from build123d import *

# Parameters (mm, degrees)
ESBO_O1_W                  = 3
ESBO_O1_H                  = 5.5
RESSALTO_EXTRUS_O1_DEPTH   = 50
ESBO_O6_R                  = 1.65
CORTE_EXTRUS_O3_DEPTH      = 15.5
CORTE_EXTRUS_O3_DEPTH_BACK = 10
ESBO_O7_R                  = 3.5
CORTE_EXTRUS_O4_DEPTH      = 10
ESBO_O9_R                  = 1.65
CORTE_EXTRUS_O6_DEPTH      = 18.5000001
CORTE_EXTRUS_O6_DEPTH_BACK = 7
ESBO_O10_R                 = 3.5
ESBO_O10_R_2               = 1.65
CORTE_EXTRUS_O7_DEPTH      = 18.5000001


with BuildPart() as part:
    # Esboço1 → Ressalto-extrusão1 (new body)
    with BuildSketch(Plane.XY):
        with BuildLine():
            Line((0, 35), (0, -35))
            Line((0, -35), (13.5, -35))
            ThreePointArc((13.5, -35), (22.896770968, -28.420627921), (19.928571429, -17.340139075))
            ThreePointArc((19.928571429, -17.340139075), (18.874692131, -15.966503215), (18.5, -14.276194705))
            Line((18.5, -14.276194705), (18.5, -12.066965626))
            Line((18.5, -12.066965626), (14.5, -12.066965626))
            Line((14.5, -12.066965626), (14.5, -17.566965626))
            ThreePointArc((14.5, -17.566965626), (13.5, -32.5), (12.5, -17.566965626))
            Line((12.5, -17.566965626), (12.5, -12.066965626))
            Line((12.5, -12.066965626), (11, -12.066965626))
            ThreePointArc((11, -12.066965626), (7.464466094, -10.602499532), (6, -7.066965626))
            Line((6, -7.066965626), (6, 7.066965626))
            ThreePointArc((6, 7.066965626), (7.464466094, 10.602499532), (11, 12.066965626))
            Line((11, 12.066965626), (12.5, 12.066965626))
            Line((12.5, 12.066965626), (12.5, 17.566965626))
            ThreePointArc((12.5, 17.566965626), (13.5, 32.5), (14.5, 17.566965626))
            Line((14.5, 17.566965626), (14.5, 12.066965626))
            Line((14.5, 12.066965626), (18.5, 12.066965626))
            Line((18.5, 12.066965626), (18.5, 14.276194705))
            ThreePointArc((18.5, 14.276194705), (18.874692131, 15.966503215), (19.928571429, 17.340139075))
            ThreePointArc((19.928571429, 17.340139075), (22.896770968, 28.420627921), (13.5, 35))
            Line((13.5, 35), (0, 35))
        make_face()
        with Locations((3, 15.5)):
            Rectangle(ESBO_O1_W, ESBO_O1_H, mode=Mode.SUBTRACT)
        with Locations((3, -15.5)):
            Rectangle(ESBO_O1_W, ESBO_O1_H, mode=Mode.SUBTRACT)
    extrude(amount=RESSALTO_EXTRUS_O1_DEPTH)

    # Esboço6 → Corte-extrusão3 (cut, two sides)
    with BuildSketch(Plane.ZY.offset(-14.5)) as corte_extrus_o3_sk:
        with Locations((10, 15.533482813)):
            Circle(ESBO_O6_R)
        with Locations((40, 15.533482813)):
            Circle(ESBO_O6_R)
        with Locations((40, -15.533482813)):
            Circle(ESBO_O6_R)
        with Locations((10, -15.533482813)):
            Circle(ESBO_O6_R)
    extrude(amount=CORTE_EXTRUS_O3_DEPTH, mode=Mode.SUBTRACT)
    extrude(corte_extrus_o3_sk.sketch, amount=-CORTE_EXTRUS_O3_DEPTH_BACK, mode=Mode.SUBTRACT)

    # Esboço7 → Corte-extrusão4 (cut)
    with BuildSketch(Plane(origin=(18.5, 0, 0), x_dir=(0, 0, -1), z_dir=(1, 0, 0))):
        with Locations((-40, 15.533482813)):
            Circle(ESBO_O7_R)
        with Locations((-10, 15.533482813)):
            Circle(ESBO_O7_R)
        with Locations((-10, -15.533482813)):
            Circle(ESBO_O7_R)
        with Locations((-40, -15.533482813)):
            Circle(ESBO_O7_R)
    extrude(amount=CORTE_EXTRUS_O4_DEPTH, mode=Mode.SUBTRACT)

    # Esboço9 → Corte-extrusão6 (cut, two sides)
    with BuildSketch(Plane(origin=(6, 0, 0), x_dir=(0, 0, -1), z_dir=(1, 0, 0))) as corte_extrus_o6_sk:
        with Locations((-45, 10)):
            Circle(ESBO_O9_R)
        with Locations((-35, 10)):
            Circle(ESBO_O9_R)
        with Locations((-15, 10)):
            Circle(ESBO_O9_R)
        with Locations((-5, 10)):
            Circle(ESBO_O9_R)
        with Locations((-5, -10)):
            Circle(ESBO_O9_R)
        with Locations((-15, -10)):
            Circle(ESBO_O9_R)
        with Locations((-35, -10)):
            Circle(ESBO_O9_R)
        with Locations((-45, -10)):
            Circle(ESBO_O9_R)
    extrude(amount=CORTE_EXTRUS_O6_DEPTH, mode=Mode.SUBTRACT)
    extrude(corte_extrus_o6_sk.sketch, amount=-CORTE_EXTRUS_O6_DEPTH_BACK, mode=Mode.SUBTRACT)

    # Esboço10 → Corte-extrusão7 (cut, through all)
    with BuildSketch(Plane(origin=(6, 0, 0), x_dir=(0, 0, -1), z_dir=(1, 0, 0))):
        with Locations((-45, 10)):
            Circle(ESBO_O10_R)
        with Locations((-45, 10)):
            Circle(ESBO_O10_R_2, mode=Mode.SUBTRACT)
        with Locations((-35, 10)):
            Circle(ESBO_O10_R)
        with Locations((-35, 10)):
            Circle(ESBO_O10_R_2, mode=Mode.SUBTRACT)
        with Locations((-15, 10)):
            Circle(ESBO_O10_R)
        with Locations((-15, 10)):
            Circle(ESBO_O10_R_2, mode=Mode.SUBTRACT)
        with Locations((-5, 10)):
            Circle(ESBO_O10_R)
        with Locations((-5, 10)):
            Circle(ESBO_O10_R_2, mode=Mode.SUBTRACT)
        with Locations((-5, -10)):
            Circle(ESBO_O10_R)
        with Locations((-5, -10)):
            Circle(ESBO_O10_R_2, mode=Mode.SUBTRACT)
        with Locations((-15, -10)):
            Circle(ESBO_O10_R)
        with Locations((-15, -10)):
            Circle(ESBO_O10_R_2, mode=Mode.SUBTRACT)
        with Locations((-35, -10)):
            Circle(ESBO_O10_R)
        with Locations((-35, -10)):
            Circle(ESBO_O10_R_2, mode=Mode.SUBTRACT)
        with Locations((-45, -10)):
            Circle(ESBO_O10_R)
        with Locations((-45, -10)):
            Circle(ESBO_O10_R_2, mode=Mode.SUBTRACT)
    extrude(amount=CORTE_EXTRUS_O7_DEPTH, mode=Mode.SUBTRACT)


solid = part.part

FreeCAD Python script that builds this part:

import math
import FreeCAD as App
import Part
import Sketcher

V = App.Vector


def add_polygon(sketch, points):
    """Adds a closed chain of lines whose ends are joined by coincident constraints."""
    first, n = sketch.GeometryCount, len(points)
    for a, b in zip(points, points[1:] + points[:1]):
        sketch.addGeometry(Part.LineSegment(App.Vector(*a, 0), App.Vector(*b, 0)), False)
    for i in range(n):
        sketch.addConstraint(Sketcher.Constraint("Coincident", first + i, 2, first + (i + 1) % n, 1))

doc = App.newDocument("Part")
body = doc.addObject("PartDesign::Body", "Body")

# Sketch on XY plane
sketch1 = body.newObject("Sketcher::SketchObject", "Sketch")
sketch1.AttachmentSupport = (doc.getObject("XY_Plane"), [""])
sketch1.MapMode = "FlatFace"
sketch1.addGeometry(Part.LineSegment(V(0, 35, 0), V(0, -35, 0)), False)  # 0
sketch1.addGeometry(Part.LineSegment(V(0, -35, 0), V(13.5, -35, 0)), False)  # 1
sketch1.addGeometry(Part.ArcOfCircle(Part.Circle(V(13.5, -25, 0), V(0, 0, 1), 10), math.radians(-90), math.radians(50)), False)  # 2
sketch1.addGeometry(Part.ArcOfCircle(Part.Circle(V(22.5, -14.3, 0), V(0, 0, 1), 4), math.radians(180), math.radians(230)), False)  # 3
sketch1.addGeometry(Part.LineSegment(V(18.5, -14.3, 0), V(18.5, -12.1, 0)), False)  # 4
sketch1.addGeometry(Part.LineSegment(V(18.5, -12.1, 0), V(14.5, -12.1, 0)), False)  # 5
sketch1.addGeometry(Part.LineSegment(V(14.5, -12.1, 0), V(14.5, -17.6, 0)), False)  # 6
sketch1.addGeometry(Part.ArcOfCircle(Part.Circle(V(13.5, -25, 0), V(0, 0, 1), 7.5), math.radians(98), math.radians(442)), False)  # 7
sketch1.addGeometry(Part.LineSegment(V(12.5, -17.6, 0), V(12.5, -12.1, 0)), False)  # 8
sketch1.addGeometry(Part.LineSegment(V(12.5, -12.1, 0), V(11, -12.1, 0)), False)  # 9
sketch1.addGeometry(Part.ArcOfCircle(Part.Circle(V(11, -7.1, 0), V(0, 0, 1), 5), math.radians(180), math.radians(270)), False)  # 10
sketch1.addGeometry(Part.LineSegment(V(6, -7.1, 0), V(6, 7.1, 0)), False)  # 11
sketch1.addGeometry(Part.ArcOfCircle(Part.Circle(V(11, 7.1, 0), V(0, 0, 1), 5), math.radians(90), math.radians(180)), False)  # 12
sketch1.addGeometry(Part.LineSegment(V(11, 12.1, 0), V(12.5, 12.1, 0)), False)  # 13
sketch1.addGeometry(Part.LineSegment(V(12.5, 12.1, 0), V(12.5, 17.6, 0)), False)  # 14
sketch1.addGeometry(Part.ArcOfCircle(Part.Circle(V(13.5, 25, 0), V(0, 0, 1), 7.5), math.radians(-82), math.radians(262)), False)  # 15
sketch1.addGeometry(Part.LineSegment(V(14.5, 17.6, 0), V(14.5, 12.1, 0)), False)  # 16
sketch1.addGeometry(Part.LineSegment(V(14.5, 12.1, 0), V(18.5, 12.1, 0)), False)  # 17
sketch1.addGeometry(Part.LineSegment(V(18.5, 12.1, 0), V(18.5, 14.3, 0)), False)  # 18
sketch1.addGeometry(Part.ArcOfCircle(Part.Circle(V(22.5, 14.3, 0), V(0, 0, 1), 4), math.radians(130), math.radians(180)), False)  # 19
sketch1.addGeometry(Part.ArcOfCircle(Part.Circle(V(13.5, 25, 0), V(0, 0, 1), 10), math.radians(-50), math.radians(90)), False)  # 20
sketch1.addGeometry(Part.LineSegment(V(13.5, 35, 0), V(0, 35, 0)), False)  # 21
add_polygon(sketch1, [(4.5, -18.2), (1.5, -18.2), (1.5, -12.8), (4.5, -12.8)])  # lines 22-25
add_polygon(sketch1, [(4.5, 12.8), (1.5, 12.8), (1.5, 18.2), (4.5, 18.2)])  # lines 26-29
sketch1.addConstraint(Sketcher.Constraint("Coincident", 0, 2, 1, 1))
sketch1.addConstraint(Sketcher.Constraint("Tangent", 1, 2, 2, 1))
sketch1.addConstraint(Sketcher.Constraint("Tangent", 2, 2, 3, 2))
sketch1.addConstraint(Sketcher.Constraint("Tangent", 3, 1, 4, 1))
sketch1.addConstraint(Sketcher.Constraint("Coincident", 4, 2, 5, 1))
sketch1.addConstraint(Sketcher.Constraint("Coincident", 5, 2, 6, 1))
sketch1.addConstraint(Sketcher.Constraint("Coincident", 6, 2, 7, 2))
sketch1.addConstraint(Sketcher.Constraint("Coincident", 7, 1, 8, 1))
sketch1.addConstraint(Sketcher.Constraint("Coincident", 8, 2, 9, 1))
sketch1.addConstraint(Sketcher.Constraint("Tangent", 9, 2, 10, 2))
sketch1.addConstraint(Sketcher.Constraint("Tangent", 10, 1, 11, 1))
sketch1.addConstraint(Sketcher.Constraint("Tangent", 11, 2, 12, 2))
sketch1.addConstraint(Sketcher.Constraint("Tangent", 12, 1, 13, 1))
sketch1.addConstraint(Sketcher.Constraint("Coincident", 13, 2, 14, 1))
sketch1.addConstraint(Sketcher.Constraint("Coincident", 14, 2, 15, 2))
sketch1.addConstraint(Sketcher.Constraint("Coincident", 15, 1, 16, 1))
sketch1.addConstraint(Sketcher.Constraint("Coincident", 16, 2, 17, 1))
sketch1.addConstraint(Sketcher.Constraint("Coincident", 17, 2, 18, 1))
sketch1.addConstraint(Sketcher.Constraint("Tangent", 18, 2, 19, 2))
sketch1.addConstraint(Sketcher.Constraint("Tangent", 19, 1, 20, 1))
sketch1.addConstraint(Sketcher.Constraint("Tangent", 20, 2, 21, 1))
sketch1.addConstraint(Sketcher.Constraint("Coincident", 21, 2, 0, 1))
sketch1.addConstraint(Sketcher.Constraint("Vertical", 0))
sketch1.addConstraint(Sketcher.Constraint("Horizontal", 1))
sketch1.addConstraint(Sketcher.Constraint("Vertical", 4))
sketch1.addConstraint(Sketcher.Constraint("Horizontal", 5))
sketch1.addConstraint(Sketcher.Constraint("Vertical", 6))
sketch1.addConstraint(Sketcher.Constraint("Vertical", 8))
sketch1.addConstraint(Sketcher.Constraint("Horizontal", 9))
sketch1.addConstraint(Sketcher.Constraint("Vertical", 11))
sketch1.addConstraint(Sketcher.Constraint("Horizontal", 13))
sketch1.addConstraint(Sketcher.Constraint("Vertical", 14))
sketch1.addConstraint(Sketcher.Constraint("Vertical", 16))
sketch1.addConstraint(Sketcher.Constraint("Horizontal", 17))
sketch1.addConstraint(Sketcher.Constraint("Vertical", 18))
sketch1.addConstraint(Sketcher.Constraint("Horizontal", 21))
sketch1.addConstraint(Sketcher.Constraint("Horizontal", 22))
sketch1.addConstraint(Sketcher.Constraint("Vertical", 23))
sketch1.addConstraint(Sketcher.Constraint("Horizontal", 24))
sketch1.addConstraint(Sketcher.Constraint("Vertical", 25))
sketch1.addConstraint(Sketcher.Constraint("Horizontal", 26))
sketch1.addConstraint(Sketcher.Constraint("Vertical", 27))
sketch1.addConstraint(Sketcher.Constraint("Horizontal", 28))
sketch1.addConstraint(Sketcher.Constraint("Vertical", 29))
sketch1.addConstraint(Sketcher.Constraint("Coincident", 7, 3, 2, 3))
sketch1.addConstraint(Sketcher.Constraint("Coincident", 20, 3, 15, 3))
sketch1.addConstraint(Sketcher.Constraint("Equal", 10, 12))
sketch1.addConstraint(Sketcher.Constraint("Equal", 7, 15))
sketch1.addConstraint(Sketcher.Constraint("Equal", 3, 19))
sketch1.addConstraint(Sketcher.Constraint("Equal", 2, 20))
sketch1.addConstraint(Sketcher.Constraint("Symmetric", 0, 2, 21, 2, -1, 1))
sketch1.addConstraint(Sketcher.Constraint("Symmetric", 3, 3, 19, 3, -1))
sketch1.addConstraint(Sketcher.Constraint("Symmetric", 8, 2, 13, 2, -1))
sketch1.addConstraint(Sketcher.Constraint("Symmetric", 5, 2, 16, 2, -1))
sketch1.addConstraint(Sketcher.Constraint("Symmetric", 23, 2, 26, 2, -1))
sketch1.addConstraint(Sketcher.Constraint("Symmetric", 25, 2, 28, 2, -1))
sketch1.addConstraint(Sketcher.Constraint("Horizontal", 6, 2, 7, 1))
sketch1.addConstraint(Sketcher.Constraint("Horizontal", 5, 2, 8, 2))
sketch1.addConstraint(Sketcher.Constraint("Equal", 16, 23))
sketch1.addConstraint(Sketcher.Constraint("Radius", 2, 10.0))
sketch1.addConstraint(Sketcher.Constraint("Radius", 3, 4.0))
sketch1.addConstraint(Sketcher.Constraint("Radius", 10, 5.0))
sketch1.addConstraint(Sketcher.Constraint("Radius", 7, 7.5))
sketch1.addConstraint(Sketcher.Constraint("DistanceX", 5, 2, 5, 1, 4.0))
sketch1.addConstraint(Sketcher.Constraint("DistanceX", 22, 2, 22, 1, 3.0))
sketch1.addConstraint(Sketcher.Constraint("DistanceY", 0, 2, 0, 1, 70.0))
sketch1.addConstraint(Sketcher.Constraint("DistanceX", 1, 1, 1, 2, 13.5))
sketch1.addConstraint(Sketcher.Constraint("DistanceX", 9, 2, 9, 1, 1.5))
sketch1.addConstraint(Sketcher.Constraint("DistanceY", 6, 2, 6, 1, 5.5))
sketch1.addConstraint(Sketcher.Constraint("DistanceX", -1, 1, 10, 3, 11.0))
sketch1.addConstraint(Sketcher.Constraint("DistanceX", 22, 2, 7, 1, 11.0))
sketch1.addConstraint(Sketcher.Constraint("DistanceY", 22, 2, -1, 1, 18.25))
pad1 = body.newObject("PartDesign::Pad", "Pad")
pad1.Profile = sketch1
pad1.Length = 50

# Sketch on YZ plane
sketch2 = body.newObject("Sketcher::SketchObject", "Sketch001")
sketch2.AttachmentSupport = (doc.getObject("YZ_Plane"), [""])
sketch2.MapMode = "FlatFace"
sketch2.AttachmentOffset = App.Placement(V(0, 0, 14.5), App.Rotation())
sketch2.addGeometry(Part.Circle(V(15.5, 10, 0), V(0, 0, 1), 1.6), False)
sketch2.addGeometry(Part.Circle(V(15.5, 40, 0), V(0, 0, 1), 1.6), False)
sketch2.addGeometry(Part.Circle(V(-15.5, 40, 0), V(0, 0, 1), 1.6), False)
sketch2.addGeometry(Part.Circle(V(-15.5, 10, 0), V(0, 0, 1), 1.6), False)
sketch2.addConstraint(Sketcher.Constraint("Equal", 0, 1))
sketch2.addConstraint(Sketcher.Constraint("Equal", 1, 2))
sketch2.addConstraint(Sketcher.Constraint("Equal", 2, 3))
sketch2.addConstraint(Sketcher.Constraint("Symmetric", 1, 3, 2, 3, -2))
sketch2.addConstraint(Sketcher.Constraint("Symmetric", 0, 3, 3, 3, -2))
sketch2.addConstraint(Sketcher.Constraint("Vertical", 0, 3, 1, 3))
sketch2.addConstraint(Sketcher.Constraint("Diameter", 0, 3.3))
sketch2.addConstraint(Sketcher.Constraint("DistanceY", -1, 1, 0, 3, 10.0))
sketch2.addConstraint(Sketcher.Constraint("DistanceY", -1, 1, 1, 3, 40.0))
sketch2.addConstraint(Sketcher.Constraint("DistanceX", -1, 1, 0, 3, 15.533483))
pocket1 = body.newObject("PartDesign::Pocket", "Pocket")
pocket1.Profile = sketch2
pocket1.Type = "ThroughAll"
pocket1.Midplane = True

# Sketch on YZ plane
sketch3 = body.newObject("Sketcher::SketchObject", "Sketch002")
sketch3.AttachmentSupport = (doc.getObject("YZ_Plane"), [""])
sketch3.MapMode = "FlatFace"
sketch3.AttachmentOffset = App.Placement(V(0, 0, 18.5), App.Rotation())
sketch3.addGeometry(Part.Circle(V(15.5, 40, 0), V(0, 0, 1), 3.5), False)
sketch3.addGeometry(Part.Circle(V(15.5, 10, 0), V(0, 0, 1), 3.5), False)
sketch3.addGeometry(Part.Circle(V(-15.5, 10, 0), V(0, 0, 1), 3.5), False)
sketch3.addGeometry(Part.Circle(V(-15.5, 40, 0), V(0, 0, 1), 3.5), False)
sketch3.addConstraint(Sketcher.Constraint("Equal", 0, 1))
sketch3.addConstraint(Sketcher.Constraint("Equal", 1, 2))
sketch3.addConstraint(Sketcher.Constraint("Equal", 2, 3))
sketch3.addConstraint(Sketcher.Constraint("Symmetric", 1, 3, 2, 3, -2))
sketch3.addConstraint(Sketcher.Constraint("Symmetric", 0, 3, 3, 3, -2))
sketch3.addConstraint(Sketcher.Constraint("Vertical", 0, 3, 1, 3))
sketch3.addConstraint(Sketcher.Constraint("Diameter", 0, 7.0))
sketch3.addConstraint(Sketcher.Constraint("DistanceY", -1, 1, 0, 3, 40.0))
sketch3.addConstraint(Sketcher.Constraint("DistanceY", -1, 1, 1, 3, 10.0))
sketch3.addConstraint(Sketcher.Constraint("DistanceX", -1, 1, 0, 3, 15.533483))
pocket2 = body.newObject("PartDesign::Pocket", "Pocket001")
pocket2.Profile = sketch3
pocket2.Length = 10
pocket2.Reversed = True

# Sketch on YZ plane
sketch4 = body.newObject("Sketcher::SketchObject", "Sketch003")
sketch4.AttachmentSupport = (doc.getObject("YZ_Plane"), [""])
sketch4.MapMode = "FlatFace"
sketch4.AttachmentOffset = App.Placement(V(0, 0, 6), App.Rotation())
sketch4.addGeometry(Part.Circle(V(10, 45, 0), V(0, 0, 1), 1.6), False)
sketch4.addGeometry(Part.Circle(V(10, 35, 0), V(0, 0, 1), 1.6), False)
sketch4.addGeometry(Part.Circle(V(10, 15, 0), V(0, 0, 1), 1.6), False)
sketch4.addGeometry(Part.Circle(V(10, 5, 0), V(0, 0, 1), 1.6), False)
sketch4.addGeometry(Part.Circle(V(-10, 5, 0), V(0, 0, 1), 1.6), False)
sketch4.addGeometry(Part.Circle(V(-10, 15, 0), V(0, 0, 1), 1.6), False)
sketch4.addGeometry(Part.Circle(V(-10, 35, 0), V(0, 0, 1), 1.6), False)
sketch4.addGeometry(Part.Circle(V(-10, 45, 0), V(0, 0, 1), 1.6), False)
sketch4.addConstraint(Sketcher.Constraint("Equal", 0, 1))
sketch4.addConstraint(Sketcher.Constraint("Equal", 1, 2))
sketch4.addConstraint(Sketcher.Constraint("Equal", 2, 3))
sketch4.addConstraint(Sketcher.Constraint("Equal", 3, 4))
sketch4.addConstraint(Sketcher.Constraint("Equal", 4, 5))
sketch4.addConstraint(Sketcher.Constraint("Equal", 5, 6))
sketch4.addConstraint(Sketcher.Constraint("Equal", 6, 7))
sketch4.addConstraint(Sketcher.Constraint("Symmetric", 3, 3, 4, 3, -2))
sketch4.addConstraint(Sketcher.Constraint("Symmetric", 2, 3, 5, 3, -2))
sketch4.addConstraint(Sketcher.Constraint("Symmetric", 1, 3, 6, 3, -2))
sketch4.addConstraint(Sketcher.Constraint("Symmetric", 0, 3, 7, 3, -2))
sketch4.addConstraint(Sketcher.Constraint("Vertical", 0, 3, 1, 3))
sketch4.addConstraint(Sketcher.Constraint("Vertical", 1, 3, 2, 3))
sketch4.addConstraint(Sketcher.Constraint("Vertical", 2, 3, 3, 3))
sketch4.addConstraint(Sketcher.Constraint("Diameter", 0, 3.3))
sketch4.addConstraint(Sketcher.Constraint("DistanceX", -1, 1, 0, 3, 10.0))
sketch4.addConstraint(Sketcher.Constraint("DistanceY", -1, 1, 0, 3, 45.0))
sketch4.addConstraint(Sketcher.Constraint("DistanceY", -1, 1, 1, 3, 35.0))
sketch4.addConstraint(Sketcher.Constraint("DistanceY", -1, 1, 2, 3, 15.0))
sketch4.addConstraint(Sketcher.Constraint("DistanceY", -1, 1, 3, 3, 5.0))
pocket3 = body.newObject("PartDesign::Pocket", "Pocket002")
pocket3.Profile = sketch4
pocket3.Type = "ThroughAll"
pocket3.Midplane = True

# Sketch on YZ plane
sketch5 = body.newObject("Sketcher::SketchObject", "Sketch004")
sketch5.AttachmentSupport = (doc.getObject("YZ_Plane"), [""])
sketch5.MapMode = "FlatFace"
sketch5.AttachmentOffset = App.Placement(V(0, 0, 6), App.Rotation())
sketch5.addGeometry(Part.Circle(V(10, 45, 0), V(0, 0, 1), 3.5), False)
sketch5.addGeometry(Part.Circle(V(10, 45, 0), V(0, 0, 1), 1.6), False)
sketch5.addGeometry(Part.Circle(V(10, 35, 0), V(0, 0, 1), 3.5), False)
sketch5.addGeometry(Part.Circle(V(10, 35, 0), V(0, 0, 1), 1.6), False)
sketch5.addGeometry(Part.Circle(V(10, 15, 0), V(0, 0, 1), 3.5), False)
sketch5.addGeometry(Part.Circle(V(10, 15, 0), V(0, 0, 1), 1.6), False)
sketch5.addGeometry(Part.Circle(V(10, 5, 0), V(0, 0, 1), 3.5), False)
sketch5.addGeometry(Part.Circle(V(10, 5, 0), V(0, 0, 1), 1.6), False)
sketch5.addGeometry(Part.Circle(V(-10, 5, 0), V(0, 0, 1), 3.5), False)
sketch5.addGeometry(Part.Circle(V(-10, 5, 0), V(0, 0, 1), 1.6), False)
sketch5.addGeometry(Part.Circle(V(-10, 15, 0), V(0, 0, 1), 3.5), False)
sketch5.addGeometry(Part.Circle(V(-10, 15, 0), V(0, 0, 1), 1.6), False)
sketch5.addGeometry(Part.Circle(V(-10, 35, 0), V(0, 0, 1), 3.5), False)
sketch5.addGeometry(Part.Circle(V(-10, 35, 0), V(0, 0, 1), 1.6), False)
sketch5.addGeometry(Part.Circle(V(-10, 45, 0), V(0, 0, 1), 3.5), False)
sketch5.addGeometry(Part.Circle(V(-10, 45, 0), V(0, 0, 1), 1.6), False)
sketch5.addConstraint(Sketcher.Constraint("Coincident", 1, 3, 0, 3))
sketch5.addConstraint(Sketcher.Constraint("Coincident", 3, 3, 2, 3))
sketch5.addConstraint(Sketcher.Constraint("Coincident", 5, 3, 4, 3))
sketch5.addConstraint(Sketcher.Constraint("Coincident", 7, 3, 6, 3))
sketch5.addConstraint(Sketcher.Constraint("Coincident", 9, 3, 8, 3))
sketch5.addConstraint(Sketcher.Constraint("Coincident", 11, 3, 10, 3))
sketch5.addConstraint(Sketcher.Constraint("Coincident", 13, 3, 12, 3))
sketch5.addConstraint(Sketcher.Constraint("Coincident", 15, 3, 14, 3))
sketch5.addConstraint(Sketcher.Constraint("Equal", 0, 2))
sketch5.addConstraint(Sketcher.Constraint("Equal", 1, 3))
sketch5.addConstraint(Sketcher.Constraint("Equal", 2, 4))
sketch5.addConstraint(Sketcher.Constraint("Equal", 3, 5))
sketch5.addConstraint(Sketcher.Constraint("Equal", 4, 6))
sketch5.addConstraint(Sketcher.Constraint("Equal", 5, 7))
sketch5.addConstraint(Sketcher.Constraint("Equal", 6, 8))
sketch5.addConstraint(Sketcher.Constraint("Equal", 7, 9))
sketch5.addConstraint(Sketcher.Constraint("Equal", 8, 10))
sketch5.addConstraint(Sketcher.Constraint("Equal", 9, 11))
sketch5.addConstraint(Sketcher.Constraint("Equal", 10, 12))
sketch5.addConstraint(Sketcher.Constraint("Equal", 11, 13))
sketch5.addConstraint(Sketcher.Constraint("Equal", 12, 14))
sketch5.addConstraint(Sketcher.Constraint("Equal", 13, 15))
sketch5.addConstraint(Sketcher.Constraint("Symmetric", 6, 3, 8, 3, -2))
sketch5.addConstraint(Sketcher.Constraint("Symmetric", 4, 3, 10, 3, -2))
sketch5.addConstraint(Sketcher.Constraint("Symmetric", 2, 3, 12, 3, -2))
sketch5.addConstraint(Sketcher.Constraint("Symmetric", 0, 3, 14, 3, -2))
sketch5.addConstraint(Sketcher.Constraint("Vertical", 1, 3, 2, 3))
sketch5.addConstraint(Sketcher.Constraint("Vertical", 3, 3, 4, 3))
sketch5.addConstraint(Sketcher.Constraint("Vertical", 5, 3, 6, 3))
sketch5.addConstraint(Sketcher.Constraint("Diameter", 0, 7.0))
sketch5.addConstraint(Sketcher.Constraint("Diameter", 1, 3.3))
sketch5.addConstraint(Sketcher.Constraint("DistanceX", -1, 1, 0, 3, 10.0))
sketch5.addConstraint(Sketcher.Constraint("DistanceY", -1, 1, 0, 3, 45.0))
sketch5.addConstraint(Sketcher.Constraint("DistanceY", -1, 1, 2, 3, 35.0))
sketch5.addConstraint(Sketcher.Constraint("DistanceY", -1, 1, 4, 3, 15.0))
sketch5.addConstraint(Sketcher.Constraint("DistanceY", -1, 1, 6, 3, 5.0))
pocket4 = body.newObject("PartDesign::Pocket", "Pocket003")
pocket4.Profile = sketch5
pocket4.Type = "ThroughAll"
pocket4.Reversed = True

doc.recompute()
